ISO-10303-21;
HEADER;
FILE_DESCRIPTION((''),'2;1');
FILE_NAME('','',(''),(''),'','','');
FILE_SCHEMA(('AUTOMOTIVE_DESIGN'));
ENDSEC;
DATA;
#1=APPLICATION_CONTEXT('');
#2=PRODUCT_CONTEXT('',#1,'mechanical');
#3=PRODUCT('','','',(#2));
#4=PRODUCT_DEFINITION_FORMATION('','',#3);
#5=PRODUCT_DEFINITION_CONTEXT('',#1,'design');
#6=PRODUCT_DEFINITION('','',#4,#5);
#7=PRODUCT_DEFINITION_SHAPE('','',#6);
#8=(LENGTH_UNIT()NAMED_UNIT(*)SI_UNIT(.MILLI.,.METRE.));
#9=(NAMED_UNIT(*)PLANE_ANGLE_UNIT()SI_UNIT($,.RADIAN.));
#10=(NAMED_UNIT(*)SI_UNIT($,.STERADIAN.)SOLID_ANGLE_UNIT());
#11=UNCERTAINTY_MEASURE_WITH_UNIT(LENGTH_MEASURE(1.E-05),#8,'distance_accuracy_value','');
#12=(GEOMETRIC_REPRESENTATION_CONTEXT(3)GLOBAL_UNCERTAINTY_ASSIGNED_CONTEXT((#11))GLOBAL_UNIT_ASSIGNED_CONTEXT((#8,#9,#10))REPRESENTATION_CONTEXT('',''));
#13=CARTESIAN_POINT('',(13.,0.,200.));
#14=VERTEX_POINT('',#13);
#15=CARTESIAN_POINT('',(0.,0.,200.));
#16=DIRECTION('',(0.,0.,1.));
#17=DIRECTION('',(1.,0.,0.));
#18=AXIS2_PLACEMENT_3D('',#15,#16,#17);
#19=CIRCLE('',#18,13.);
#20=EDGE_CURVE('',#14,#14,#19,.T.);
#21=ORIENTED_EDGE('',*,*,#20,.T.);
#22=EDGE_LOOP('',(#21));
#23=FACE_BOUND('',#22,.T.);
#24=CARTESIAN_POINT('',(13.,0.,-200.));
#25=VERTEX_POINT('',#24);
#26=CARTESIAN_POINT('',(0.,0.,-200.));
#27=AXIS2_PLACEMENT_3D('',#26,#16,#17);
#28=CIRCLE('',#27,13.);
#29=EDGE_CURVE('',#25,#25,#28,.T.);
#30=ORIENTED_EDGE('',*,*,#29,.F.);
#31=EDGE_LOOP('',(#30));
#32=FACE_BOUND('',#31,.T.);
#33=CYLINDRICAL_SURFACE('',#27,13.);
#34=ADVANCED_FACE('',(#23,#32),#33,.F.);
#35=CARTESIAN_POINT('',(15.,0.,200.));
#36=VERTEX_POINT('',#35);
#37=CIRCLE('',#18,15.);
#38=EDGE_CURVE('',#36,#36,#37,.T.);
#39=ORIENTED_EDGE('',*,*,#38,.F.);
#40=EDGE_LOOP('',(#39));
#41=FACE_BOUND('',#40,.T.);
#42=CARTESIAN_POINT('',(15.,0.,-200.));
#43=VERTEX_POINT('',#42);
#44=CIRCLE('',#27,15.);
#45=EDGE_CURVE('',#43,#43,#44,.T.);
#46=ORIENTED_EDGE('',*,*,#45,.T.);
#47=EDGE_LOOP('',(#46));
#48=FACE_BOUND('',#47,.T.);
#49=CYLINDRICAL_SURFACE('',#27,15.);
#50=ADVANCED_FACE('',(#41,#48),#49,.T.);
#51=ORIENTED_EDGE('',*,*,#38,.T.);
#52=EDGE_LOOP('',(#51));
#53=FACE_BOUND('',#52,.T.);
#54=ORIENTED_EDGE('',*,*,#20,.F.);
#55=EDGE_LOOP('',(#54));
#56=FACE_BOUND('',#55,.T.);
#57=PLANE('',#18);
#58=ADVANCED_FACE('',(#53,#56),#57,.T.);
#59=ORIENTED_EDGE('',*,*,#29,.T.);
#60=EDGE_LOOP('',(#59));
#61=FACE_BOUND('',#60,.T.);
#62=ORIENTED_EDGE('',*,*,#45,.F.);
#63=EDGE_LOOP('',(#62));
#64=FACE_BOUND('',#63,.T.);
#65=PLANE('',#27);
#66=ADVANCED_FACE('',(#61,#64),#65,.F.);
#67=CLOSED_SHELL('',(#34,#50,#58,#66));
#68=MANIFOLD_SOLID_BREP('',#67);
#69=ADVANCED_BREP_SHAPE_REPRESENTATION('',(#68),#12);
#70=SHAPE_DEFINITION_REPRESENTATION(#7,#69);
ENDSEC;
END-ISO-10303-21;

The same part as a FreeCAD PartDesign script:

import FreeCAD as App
import Part
import Sketcher
from FreeCAD import Vector
Q = App.Units.Quantity

doc = App.newDocument("Part")
body = doc.addObject("PartDesign::Body", "Body")

# Sketch on XY plane
sketch1 = body.newObject("Sketcher::SketchObject", "Sketch")
sketch1.AttachmentSupport = (doc.getObject("XY_Plane"), [""])
sketch1.MapMode = "FlatFace"
sketch1.addGeometry([
    Part.Circle(Vector(0, 0, 0), Vector(0, 0, 1), 15),
    Part.Circle(Vector(0, 0, 0), Vector(0, 0, 1), 13),
], False)
sketch1.addConstraint([
    Sketcher.Constraint("Coincident", 0, 3, -1, 1),
    Sketcher.Constraint("Coincident", 1, 3, -1, 1),
    Sketcher.Constraint("Diameter", 0, Q("30 mm")),
    Sketcher.Constraint("Diameter", 1, Q("26 mm")),
])
pad1 = body.newObject("PartDesign::Pad", "Pad")
pad1.Profile = sketch1
pad1.Type = "TwoLengths"
pad1.Length = 200
pad1.Length2 = 200

doc.recompute()
